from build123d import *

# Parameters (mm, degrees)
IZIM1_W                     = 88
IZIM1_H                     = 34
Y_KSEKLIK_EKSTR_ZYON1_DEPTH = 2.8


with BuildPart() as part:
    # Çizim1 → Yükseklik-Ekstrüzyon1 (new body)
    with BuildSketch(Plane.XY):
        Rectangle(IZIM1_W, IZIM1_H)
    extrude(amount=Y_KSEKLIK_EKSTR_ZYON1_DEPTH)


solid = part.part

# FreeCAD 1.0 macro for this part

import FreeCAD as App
import Part
import Sketcher
from FreeCAD import Vector
Q = App.Units.Quantity


def add_polygon(sketch, points):
    """Adds a closed chain of lines whose ends are joined by coincident constraints."""
    first, n = sketch.GeometryCount, len(points)
    for a, b in zip(points, points[1:] + points[:1]):
        sketch.addGeometry(Part.LineSegment(App.Vector(*a, 0), App.Vector(*b, 0)), False)
    for i in range(n):
        sketch.addConstraint(Sketcher.Constraint("Coincident", first + i, 2, first + (i + 1) % n, 1))

doc = App.newDocument("Part")
body = doc.addObject("PartDesign::Body", "Body")

sketch1 = body.newObject("Sketcher::SketchObject", "Sketch")
sketch1.AttachmentSupport = (doc.getObject("XY_Plane"), [""])
sketch1.MapMode = "FlatFace"
add_polygon(sketch1, [(-44, 17), (-44, -17), (44, -17), (44, 17)])
sketch1.addConstraint([
    Sketcher.Constraint("Vertical", 0),
    Sketcher.Constraint("Horizontal", 1),
    Sketcher.Constraint("Vertical", 2),
    Sketcher.Constraint("Horizontal", 3),
    Sketcher.Constraint("Symmetric", 0, 2, 2, 2, -1, 1),
    Sketcher.Constraint("DistanceX", 1, 1, 1, 2, Q("88 mm")),
    Sketcher.Constraint("DistanceY", 0, 2, 0, 1, Q("34 mm")),
])
pad1 = body.newObject("PartDesign::Pad", "Pad")
pad1.Profile = sketch1
pad1.Length = 2.8

doc.recompute()
